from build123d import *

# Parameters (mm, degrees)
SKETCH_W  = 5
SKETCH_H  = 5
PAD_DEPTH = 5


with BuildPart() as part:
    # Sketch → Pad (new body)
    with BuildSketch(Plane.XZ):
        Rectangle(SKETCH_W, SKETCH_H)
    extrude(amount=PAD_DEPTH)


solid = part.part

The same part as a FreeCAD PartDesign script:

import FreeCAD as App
import Part
import Sketcher

doc = App.newDocument("Part")
body = doc.addObject("PartDesign::Body", "Body")

# Sketch on XZ plane
sketch1 = body.newObject("Sketcher::SketchObject", "Sketch")
sketch1.AttachmentSupport = (doc.getObject("XZ_Plane"), [""])
sketch1.MapMode = "FlatFace"
sketch1.addGeometry([
    Part.LineSegment(App.Vector(-2, 2, 0), App.Vector(-2, -2, 0)),
    Part.LineSegment(App.Vector(-2, -2, 0), App.Vector(2, -2, 0)),
    Part.LineSegment(App.Vector(2, -2, 0), App.Vector(2, 2, 0)),
    Part.LineSegment(App.Vector(2, 2, 0), App.Vector(-2, 2, 0)),
], False)
sketch1.addConstraint([
    Sketcher.Constraint("Coincident", 0, 2, 1, 1),
    Sketcher.Constraint("Coincident", 1, 2, 2, 1),
    Sketcher.Constraint("Coincident", 2, 2, 3, 1),
    Sketcher.Constraint("Coincident", 3, 2, 0, 1),
    Sketcher.Constraint("Vertical", 0),
    Sketcher.Constraint("Horizontal", 1),
    Sketcher.Constraint("Vertical", 2),
    Sketcher.Constraint("Horizontal", 3),
    Sketcher.Constraint("Symmetric", 0, 2, 2, 2, -1, 1),
    Sketcher.Constraint("Equal", 3, 0),
    Sketcher.Constraint("DistanceX", 1, 1, 1, 2, 5.0),
])
pad1 = body.newObject("PartDesign::Pad", "Pad")
pad1.Profile = sketch1
pad1.Length = 5

doc.recompute()
